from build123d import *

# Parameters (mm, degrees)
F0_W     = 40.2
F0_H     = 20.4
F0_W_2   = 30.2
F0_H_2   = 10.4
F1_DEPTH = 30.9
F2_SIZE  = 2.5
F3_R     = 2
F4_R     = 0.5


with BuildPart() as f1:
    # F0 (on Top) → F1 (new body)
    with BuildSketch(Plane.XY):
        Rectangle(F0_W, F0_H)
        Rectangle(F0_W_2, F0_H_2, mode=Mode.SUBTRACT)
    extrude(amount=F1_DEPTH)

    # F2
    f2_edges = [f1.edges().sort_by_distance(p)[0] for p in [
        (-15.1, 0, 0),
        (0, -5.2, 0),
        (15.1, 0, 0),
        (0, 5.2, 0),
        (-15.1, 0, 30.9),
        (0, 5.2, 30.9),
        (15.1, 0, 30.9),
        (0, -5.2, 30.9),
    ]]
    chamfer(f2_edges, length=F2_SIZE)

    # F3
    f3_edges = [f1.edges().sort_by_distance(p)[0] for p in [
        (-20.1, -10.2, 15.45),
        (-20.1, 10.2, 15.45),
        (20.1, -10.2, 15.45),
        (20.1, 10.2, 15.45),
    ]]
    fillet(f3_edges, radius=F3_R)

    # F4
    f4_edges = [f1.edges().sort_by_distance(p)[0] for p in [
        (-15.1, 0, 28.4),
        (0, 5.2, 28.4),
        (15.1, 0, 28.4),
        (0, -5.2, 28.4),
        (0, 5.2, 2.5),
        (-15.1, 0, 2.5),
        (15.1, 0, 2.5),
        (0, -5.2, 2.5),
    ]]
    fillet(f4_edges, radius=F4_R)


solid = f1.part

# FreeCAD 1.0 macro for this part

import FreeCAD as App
import Part
import Sketcher

V = App.Vector
Q = App.Units.Quantity


def edges_at(feature, points):
    """Names of the edges that pass closest to the given points."""
    edges = feature.Shape.Edges
    near = lambda p: min(range(len(edges)), key=lambda i: edges[i].distToShape(Part.Vertex(*p))[0])
    return sorted({f"Edge{near(p) + 1}" for p in points})


def add_polygon(sketch, points):
    """Adds a closed chain of lines whose ends are joined by coincident constraints."""
    first, n = sketch.GeometryCount, len(points)
    for a, b in zip(points, points[1:] + points[:1]):
        sketch.addGeometry(Part.LineSegment(App.Vector(*a, 0), App.Vector(*b, 0)), False)
    for i in range(n):
        sketch.addConstraint(Sketcher.Constraint("Coincident", first + i, 2, first + (i + 1) % n, 1))

doc = App.newDocument("Part")
body = doc.addObject("PartDesign::Body", "Body")

sketch1 = doc.addObject("Sketcher::SketchObject", "Sketch")
body.addObject(sketch1)
sketch1.AttachmentSupport = (doc.XY_Plane, [""])
sketch1.MapMode = "FlatFace"
add_polygon(sketch1, [(-20, 10), (-20, -10), (20, -10), (20, 10)])
add_polygon(sketch1, [(15, -5), (-15, -5), (-15, 5), (15, 5)])
sketch1.addConstraint([
    Sketcher.Constraint("Vertical", 0),
    Sketcher.Constraint("Horizontal", 1),
    Sketcher.Constraint("Vertical", 2),
    Sketcher.Constraint("Horizontal", 3),
    Sketcher.Constraint("Horizontal", 4),
    Sketcher.Constraint("Vertical", 5),
    Sketcher.Constraint("Horizontal", 6),
    Sketcher.Constraint("Vertical", 7),
    Sketcher.Constraint("Symmetric", 0, 2, 2, 2, -1, 1),
    Sketcher.Constraint("Symmetric", 4, 2, 6, 2, -1, 1),
    Sketcher.Constraint("DistanceX", 1, 1, 1, 2, Q("40.2 mm")),
    Sketcher.Constraint("DistanceX", 4, 2, 4, 1, Q("30.2 mm")),
    Sketcher.Constraint("DistanceY", 0, 2, 0, 1, Q("20.4 mm")),
    Sketcher.Constraint("DistanceY", 5, 1, 5, 2, Q("10.4 mm")),
])
pad1 = doc.addObject("PartDesign::Pad", "Pad")
body.addObject(pad1)
pad1.Profile = sketch1
pad1.Length = 30.9
doc.recompute()

chamfer = doc.addObject("PartDesign::Chamfer", "Chamfer")
body.addObject(chamfer)
chamfer.Base = (pad1, edges_at(pad1, [
    (-15.1, 0, 0),
    (0, -5.2, 0),
    (15.1, 0, 0),
    (0, 5.2, 0),
    (-15.1, 0, 30.9),
    (0, 5.2, 30.9),
    (15.1, 0, 30.9),
    (0, -5.2, 30.9),
]))
chamfer.Size = 2.5
doc.recompute()

fillet = doc.addObject("PartDesign::Fillet", "Fillet")
body.addObject(fillet)
fillet.Base = (chamfer, edges_at(chamfer, [
    (-20.1, -10.2, 15.45),
    (-20.1, 10.2, 15.45),
    (20.1, -10.2, 15.45),
    (20.1, 10.2, 15.45),
]))
fillet.Radius = 2
doc.recompute()

fillet2 = doc.addObject("PartDesign::Fillet", "Fillet001")
body.addObject(fillet2)
fillet2.Base = (fillet, edges_at(fillet, [
    (-15.1, 0, 28.4),
    (0, 5.2, 28.4),
    (15.1, 0, 28.4),
    (0, -5.2, 28.4),
    (0, 5.2, 2.5),
    (-15.1, 0, 2.5),
    (15.1, 0, 2.5),
    (0, -5.2, 2.5),
]))
fillet2.Radius = 0.5

doc.recompute()
